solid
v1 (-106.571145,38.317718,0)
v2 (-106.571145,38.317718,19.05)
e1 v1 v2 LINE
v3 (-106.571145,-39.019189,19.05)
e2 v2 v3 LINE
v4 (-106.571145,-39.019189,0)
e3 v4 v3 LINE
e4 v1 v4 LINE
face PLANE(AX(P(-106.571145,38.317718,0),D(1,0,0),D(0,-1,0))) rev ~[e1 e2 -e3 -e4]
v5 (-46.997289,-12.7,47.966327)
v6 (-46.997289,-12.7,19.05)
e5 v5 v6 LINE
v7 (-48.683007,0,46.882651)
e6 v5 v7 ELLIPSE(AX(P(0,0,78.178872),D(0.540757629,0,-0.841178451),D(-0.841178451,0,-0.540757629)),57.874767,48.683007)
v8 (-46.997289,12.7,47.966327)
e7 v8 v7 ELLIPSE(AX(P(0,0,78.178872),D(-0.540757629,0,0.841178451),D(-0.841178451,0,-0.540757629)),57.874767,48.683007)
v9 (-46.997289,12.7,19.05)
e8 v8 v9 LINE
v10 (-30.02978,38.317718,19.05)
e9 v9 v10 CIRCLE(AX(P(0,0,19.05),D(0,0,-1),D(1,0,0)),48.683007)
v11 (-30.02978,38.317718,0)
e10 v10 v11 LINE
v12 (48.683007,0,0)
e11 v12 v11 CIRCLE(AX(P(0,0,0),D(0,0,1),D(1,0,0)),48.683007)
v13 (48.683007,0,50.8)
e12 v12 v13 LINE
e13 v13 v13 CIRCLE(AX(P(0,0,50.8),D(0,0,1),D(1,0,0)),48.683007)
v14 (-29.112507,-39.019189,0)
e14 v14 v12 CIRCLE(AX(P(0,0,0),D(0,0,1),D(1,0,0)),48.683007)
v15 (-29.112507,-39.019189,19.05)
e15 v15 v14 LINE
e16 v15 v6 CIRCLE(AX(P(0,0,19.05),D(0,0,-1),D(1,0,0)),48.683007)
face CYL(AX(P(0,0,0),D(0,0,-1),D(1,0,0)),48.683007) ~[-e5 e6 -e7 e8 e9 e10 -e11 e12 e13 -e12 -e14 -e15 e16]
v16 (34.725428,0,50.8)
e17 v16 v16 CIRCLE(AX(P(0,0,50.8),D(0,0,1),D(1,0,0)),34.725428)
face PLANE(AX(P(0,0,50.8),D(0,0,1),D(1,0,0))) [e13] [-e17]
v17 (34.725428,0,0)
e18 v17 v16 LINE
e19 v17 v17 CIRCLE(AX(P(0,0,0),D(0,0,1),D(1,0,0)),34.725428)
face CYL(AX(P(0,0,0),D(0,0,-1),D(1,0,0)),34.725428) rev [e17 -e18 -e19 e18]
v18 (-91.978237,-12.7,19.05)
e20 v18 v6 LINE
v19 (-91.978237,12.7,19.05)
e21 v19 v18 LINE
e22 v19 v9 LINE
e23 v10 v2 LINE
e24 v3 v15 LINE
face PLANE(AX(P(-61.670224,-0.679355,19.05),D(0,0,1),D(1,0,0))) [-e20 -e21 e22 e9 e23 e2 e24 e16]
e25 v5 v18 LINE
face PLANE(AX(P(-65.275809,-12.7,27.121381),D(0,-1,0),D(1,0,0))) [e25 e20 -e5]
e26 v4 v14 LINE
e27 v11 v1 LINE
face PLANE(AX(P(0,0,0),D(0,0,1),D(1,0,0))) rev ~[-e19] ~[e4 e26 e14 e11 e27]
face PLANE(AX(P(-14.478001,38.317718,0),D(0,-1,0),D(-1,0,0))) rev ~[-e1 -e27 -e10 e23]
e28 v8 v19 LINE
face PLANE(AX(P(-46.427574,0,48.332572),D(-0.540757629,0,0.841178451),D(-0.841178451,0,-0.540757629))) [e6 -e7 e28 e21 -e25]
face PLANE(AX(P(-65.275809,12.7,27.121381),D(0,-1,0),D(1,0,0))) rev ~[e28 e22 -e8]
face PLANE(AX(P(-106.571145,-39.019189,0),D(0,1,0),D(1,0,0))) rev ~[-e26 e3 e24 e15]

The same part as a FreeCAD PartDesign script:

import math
import FreeCAD as App
import Part
import Sketcher
from FreeCAD import Vector
Q = App.Units.Quantity

doc = App.newDocument("Part")
params = doc.addObject("Spreadsheet::Sheet", "Params")
for row, (alias, value) in enumerate([
    ("pad1_length", "2 in"),
    ("pad2_length", "0.75 in"),
    ("sketch3_width", "1.9199998 in"),
    ("pad3_length", "0.5 in"),
    ("pad3_length2", "0.5 in"),
], start=1):
    params.set(f"A{row}", alias)
    params.set(f"B{row}", "=" + value)
    params.setAlias(f"B{row}", alias)

body = doc.addObject("PartDesign::Body", "Body")

# Sketch on XY plane
sketch1 = body.newObject("Sketcher::SketchObject", "Sketch")
sketch1.AttachmentSupport = (doc.getObject("XY_Plane"), [""])
sketch1.MapMode = "FlatFace"
sketch1.addGeometry([
    Part.Circle(Vector(0, 0, 0), Vector(0, 0, 1), 49),
    Part.Circle(Vector(0, 0, 0), Vector(0, 0, 1), 35),
], False)
sketch1.addConstraint([
    Sketcher.Constraint("Coincident", 0, 3, -1, 1),
    Sketcher.Constraint("Coincident", 1, 3, -1, 1),
    Sketcher.Constraint("Diameter", 0, 97.366014),
    Sketcher.Constraint("Diameter", 1, 69.450856),
])
pad1 = body.newObject("PartDesign::Pad", "Pad")
pad1.Profile = sketch1
pad1.setExpression("Length", "Params.pad1_length")

# Sketch on XY plane
sketch2 = body.newObject("Sketcher::SketchObject", "Sketch001")
sketch2.AttachmentSupport = (doc.getObject("XY_Plane"), [""])
sketch2.MapMode = "FlatFace"
sketch2.addGeometry([
    Part.ArcOfCircle(Part.Circle(Vector(0, 0, 0), Vector(0, 0, 1), 41), math.radians(111), math.radians(252)),
    Part.LineSegment(Vector(-14, 38, 0), Vector(-107, 38, 0)),
    Part.LineSegment(Vector(-107, 38, 0), Vector(-107, -39, 0)),
    Part.LineSegment(Vector(-107, -39, 0), Vector(-12, -39, 0)),
], False)
sketch2.addConstraint([
    Sketcher.Constraint("Coincident", 0, 1, 1, 1),
    Sketcher.Constraint("Coincident", 1, 2, 2, 1),
    Sketcher.Constraint("Coincident", 2, 2, 3, 1),
    Sketcher.Constraint("Coincident", 3, 2, 0, 2),
    Sketcher.Constraint("Horizontal", 1),
    Sketcher.Constraint("Vertical", 2),
    Sketcher.Constraint("Horizontal", 3),
    Sketcher.Constraint("Coincident", 0, 3, -1, 1),
    Sketcher.Constraint("DistanceX", 0, 1, -1, 1, Q("0.57 in")),
    Sketcher.Constraint("Radius", 0, 40.961689),
    Sketcher.Constraint("DistanceX", 3, 1, 3, 2, 94.106681),
    Sketcher.Constraint("DistanceX", 1, 2, 1, 1, 92.093144),
])
pad2 = body.newObject("PartDesign::Pad", "Pad001")
pad2.Profile = sketch2
pad2.setExpression("Length", "Params.pad2_length")

# Sketch on XZ plane
sketch3 = body.newObject("Sketcher::SketchObject", "Sketch002")
sketch3.AttachmentSupport = (doc.getObject("XZ_Plane"), [""])
sketch3.MapMode = "FlatFace"
sketch3.addGeometry([
    Part.LineSegment(Vector(-46, 17, 0), Vector(-46, 48, 0)),
    Part.LineSegment(Vector(-46, 48, 0), Vector(-95, 17, 0)),
    Part.LineSegment(Vector(-95, 17, 0), Vector(-46, 17, 0)),
], False)
sketch3.addConstraint([
    Sketcher.Constraint("Coincident", 0, 2, 1, 1),
    Sketcher.Constraint("Coincident", 1, 2, 2, 1),
    Sketcher.Constraint("Coincident", 2, 2, 0, 1),
    Sketcher.Constraint("Vertical", 0),
    Sketcher.Constraint("Horizontal", 2),
    Sketcher.Constraint("DistanceX", 2, 1, 2, 2, Q("1.9199998 in")),
    Sketcher.Constraint("Distance", 1, 57.975802),
    Sketcher.Constraint("DistanceX", 1, 2, -1, 1, 95.195569),
    Sketcher.Constraint("DistanceY", -1, 1, 0, 2, 48.332572),
])
sketch3.setExpression("Constraints[5]", "Params.sketch3_width")
pad3 = body.newObject("PartDesign::Pad", "Pad002")
pad3.Profile = sketch3
pad3.Type = "TwoLengths"
pad3.setExpression("Length", "Params.pad3_length")
pad3.setExpression("Length2", "Params.pad3_length2")

doc.recompute()
